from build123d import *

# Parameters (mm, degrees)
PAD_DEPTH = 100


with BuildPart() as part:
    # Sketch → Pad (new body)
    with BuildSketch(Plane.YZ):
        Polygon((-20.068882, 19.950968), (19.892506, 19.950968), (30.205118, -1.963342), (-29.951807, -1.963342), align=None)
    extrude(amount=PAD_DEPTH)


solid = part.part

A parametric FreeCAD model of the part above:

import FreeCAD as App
import Part
import Sketcher

doc = App.newDocument("Part")
body = doc.addObject("PartDesign::Body", "Body")

# Sketch on YZ plane
sketch1 = body.newObject("Sketcher::SketchObject", "Sketch")
sketch1.AttachmentSupport = (doc.getObject("YZ_Plane"), [""])
sketch1.MapMode = "FlatFace"
sketch1.addGeometry([
    Part.LineSegment(App.Vector(20, 20, 0), App.Vector(-20, 20, 0)),
    Part.LineSegment(App.Vector(-20, 20, 0), App.Vector(-30, -2, 0)),
    Part.LineSegment(App.Vector(-30, -2, 0), App.Vector(30, -2, 0)),
    Part.LineSegment(App.Vector(30, -2, 0), App.Vector(20, 20, 0)),
], False)
sketch1.addConstraint([
    Sketcher.Constraint("Coincident", 0, 2, 1, 1),
    Sketcher.Constraint("Coincident", 1, 2, 2, 1),
    Sketcher.Constraint("Coincident", 2, 2, 3, 1),
    Sketcher.Constraint("Coincident", 3, 2, 0, 1),
    Sketcher.Constraint("Horizontal", 0),
    Sketcher.Constraint("Horizontal", 2),
    Sketcher.Constraint("DistanceX", 0, 2, 2, 2, 50.274),
    Sketcher.Constraint("Distance", 1, 24.039742),
    Sketcher.Constraint("DistanceX", 0, 2, 0, 1, 39.961388),
    Sketcher.Constraint("DistanceX", 2, 1, 2, 2, 60.156925),
    Sketcher.Constraint("DistanceX", 0, 2, -1, 1, 20.068882),
    Sketcher.Constraint("DistanceY", 1, 2, -1, 1, 1.963342),
])
pad1 = body.newObject("PartDesign::Pad", "Pad")
pad1.Profile = sketch1
pad1.Length = 100

doc.recompute()
